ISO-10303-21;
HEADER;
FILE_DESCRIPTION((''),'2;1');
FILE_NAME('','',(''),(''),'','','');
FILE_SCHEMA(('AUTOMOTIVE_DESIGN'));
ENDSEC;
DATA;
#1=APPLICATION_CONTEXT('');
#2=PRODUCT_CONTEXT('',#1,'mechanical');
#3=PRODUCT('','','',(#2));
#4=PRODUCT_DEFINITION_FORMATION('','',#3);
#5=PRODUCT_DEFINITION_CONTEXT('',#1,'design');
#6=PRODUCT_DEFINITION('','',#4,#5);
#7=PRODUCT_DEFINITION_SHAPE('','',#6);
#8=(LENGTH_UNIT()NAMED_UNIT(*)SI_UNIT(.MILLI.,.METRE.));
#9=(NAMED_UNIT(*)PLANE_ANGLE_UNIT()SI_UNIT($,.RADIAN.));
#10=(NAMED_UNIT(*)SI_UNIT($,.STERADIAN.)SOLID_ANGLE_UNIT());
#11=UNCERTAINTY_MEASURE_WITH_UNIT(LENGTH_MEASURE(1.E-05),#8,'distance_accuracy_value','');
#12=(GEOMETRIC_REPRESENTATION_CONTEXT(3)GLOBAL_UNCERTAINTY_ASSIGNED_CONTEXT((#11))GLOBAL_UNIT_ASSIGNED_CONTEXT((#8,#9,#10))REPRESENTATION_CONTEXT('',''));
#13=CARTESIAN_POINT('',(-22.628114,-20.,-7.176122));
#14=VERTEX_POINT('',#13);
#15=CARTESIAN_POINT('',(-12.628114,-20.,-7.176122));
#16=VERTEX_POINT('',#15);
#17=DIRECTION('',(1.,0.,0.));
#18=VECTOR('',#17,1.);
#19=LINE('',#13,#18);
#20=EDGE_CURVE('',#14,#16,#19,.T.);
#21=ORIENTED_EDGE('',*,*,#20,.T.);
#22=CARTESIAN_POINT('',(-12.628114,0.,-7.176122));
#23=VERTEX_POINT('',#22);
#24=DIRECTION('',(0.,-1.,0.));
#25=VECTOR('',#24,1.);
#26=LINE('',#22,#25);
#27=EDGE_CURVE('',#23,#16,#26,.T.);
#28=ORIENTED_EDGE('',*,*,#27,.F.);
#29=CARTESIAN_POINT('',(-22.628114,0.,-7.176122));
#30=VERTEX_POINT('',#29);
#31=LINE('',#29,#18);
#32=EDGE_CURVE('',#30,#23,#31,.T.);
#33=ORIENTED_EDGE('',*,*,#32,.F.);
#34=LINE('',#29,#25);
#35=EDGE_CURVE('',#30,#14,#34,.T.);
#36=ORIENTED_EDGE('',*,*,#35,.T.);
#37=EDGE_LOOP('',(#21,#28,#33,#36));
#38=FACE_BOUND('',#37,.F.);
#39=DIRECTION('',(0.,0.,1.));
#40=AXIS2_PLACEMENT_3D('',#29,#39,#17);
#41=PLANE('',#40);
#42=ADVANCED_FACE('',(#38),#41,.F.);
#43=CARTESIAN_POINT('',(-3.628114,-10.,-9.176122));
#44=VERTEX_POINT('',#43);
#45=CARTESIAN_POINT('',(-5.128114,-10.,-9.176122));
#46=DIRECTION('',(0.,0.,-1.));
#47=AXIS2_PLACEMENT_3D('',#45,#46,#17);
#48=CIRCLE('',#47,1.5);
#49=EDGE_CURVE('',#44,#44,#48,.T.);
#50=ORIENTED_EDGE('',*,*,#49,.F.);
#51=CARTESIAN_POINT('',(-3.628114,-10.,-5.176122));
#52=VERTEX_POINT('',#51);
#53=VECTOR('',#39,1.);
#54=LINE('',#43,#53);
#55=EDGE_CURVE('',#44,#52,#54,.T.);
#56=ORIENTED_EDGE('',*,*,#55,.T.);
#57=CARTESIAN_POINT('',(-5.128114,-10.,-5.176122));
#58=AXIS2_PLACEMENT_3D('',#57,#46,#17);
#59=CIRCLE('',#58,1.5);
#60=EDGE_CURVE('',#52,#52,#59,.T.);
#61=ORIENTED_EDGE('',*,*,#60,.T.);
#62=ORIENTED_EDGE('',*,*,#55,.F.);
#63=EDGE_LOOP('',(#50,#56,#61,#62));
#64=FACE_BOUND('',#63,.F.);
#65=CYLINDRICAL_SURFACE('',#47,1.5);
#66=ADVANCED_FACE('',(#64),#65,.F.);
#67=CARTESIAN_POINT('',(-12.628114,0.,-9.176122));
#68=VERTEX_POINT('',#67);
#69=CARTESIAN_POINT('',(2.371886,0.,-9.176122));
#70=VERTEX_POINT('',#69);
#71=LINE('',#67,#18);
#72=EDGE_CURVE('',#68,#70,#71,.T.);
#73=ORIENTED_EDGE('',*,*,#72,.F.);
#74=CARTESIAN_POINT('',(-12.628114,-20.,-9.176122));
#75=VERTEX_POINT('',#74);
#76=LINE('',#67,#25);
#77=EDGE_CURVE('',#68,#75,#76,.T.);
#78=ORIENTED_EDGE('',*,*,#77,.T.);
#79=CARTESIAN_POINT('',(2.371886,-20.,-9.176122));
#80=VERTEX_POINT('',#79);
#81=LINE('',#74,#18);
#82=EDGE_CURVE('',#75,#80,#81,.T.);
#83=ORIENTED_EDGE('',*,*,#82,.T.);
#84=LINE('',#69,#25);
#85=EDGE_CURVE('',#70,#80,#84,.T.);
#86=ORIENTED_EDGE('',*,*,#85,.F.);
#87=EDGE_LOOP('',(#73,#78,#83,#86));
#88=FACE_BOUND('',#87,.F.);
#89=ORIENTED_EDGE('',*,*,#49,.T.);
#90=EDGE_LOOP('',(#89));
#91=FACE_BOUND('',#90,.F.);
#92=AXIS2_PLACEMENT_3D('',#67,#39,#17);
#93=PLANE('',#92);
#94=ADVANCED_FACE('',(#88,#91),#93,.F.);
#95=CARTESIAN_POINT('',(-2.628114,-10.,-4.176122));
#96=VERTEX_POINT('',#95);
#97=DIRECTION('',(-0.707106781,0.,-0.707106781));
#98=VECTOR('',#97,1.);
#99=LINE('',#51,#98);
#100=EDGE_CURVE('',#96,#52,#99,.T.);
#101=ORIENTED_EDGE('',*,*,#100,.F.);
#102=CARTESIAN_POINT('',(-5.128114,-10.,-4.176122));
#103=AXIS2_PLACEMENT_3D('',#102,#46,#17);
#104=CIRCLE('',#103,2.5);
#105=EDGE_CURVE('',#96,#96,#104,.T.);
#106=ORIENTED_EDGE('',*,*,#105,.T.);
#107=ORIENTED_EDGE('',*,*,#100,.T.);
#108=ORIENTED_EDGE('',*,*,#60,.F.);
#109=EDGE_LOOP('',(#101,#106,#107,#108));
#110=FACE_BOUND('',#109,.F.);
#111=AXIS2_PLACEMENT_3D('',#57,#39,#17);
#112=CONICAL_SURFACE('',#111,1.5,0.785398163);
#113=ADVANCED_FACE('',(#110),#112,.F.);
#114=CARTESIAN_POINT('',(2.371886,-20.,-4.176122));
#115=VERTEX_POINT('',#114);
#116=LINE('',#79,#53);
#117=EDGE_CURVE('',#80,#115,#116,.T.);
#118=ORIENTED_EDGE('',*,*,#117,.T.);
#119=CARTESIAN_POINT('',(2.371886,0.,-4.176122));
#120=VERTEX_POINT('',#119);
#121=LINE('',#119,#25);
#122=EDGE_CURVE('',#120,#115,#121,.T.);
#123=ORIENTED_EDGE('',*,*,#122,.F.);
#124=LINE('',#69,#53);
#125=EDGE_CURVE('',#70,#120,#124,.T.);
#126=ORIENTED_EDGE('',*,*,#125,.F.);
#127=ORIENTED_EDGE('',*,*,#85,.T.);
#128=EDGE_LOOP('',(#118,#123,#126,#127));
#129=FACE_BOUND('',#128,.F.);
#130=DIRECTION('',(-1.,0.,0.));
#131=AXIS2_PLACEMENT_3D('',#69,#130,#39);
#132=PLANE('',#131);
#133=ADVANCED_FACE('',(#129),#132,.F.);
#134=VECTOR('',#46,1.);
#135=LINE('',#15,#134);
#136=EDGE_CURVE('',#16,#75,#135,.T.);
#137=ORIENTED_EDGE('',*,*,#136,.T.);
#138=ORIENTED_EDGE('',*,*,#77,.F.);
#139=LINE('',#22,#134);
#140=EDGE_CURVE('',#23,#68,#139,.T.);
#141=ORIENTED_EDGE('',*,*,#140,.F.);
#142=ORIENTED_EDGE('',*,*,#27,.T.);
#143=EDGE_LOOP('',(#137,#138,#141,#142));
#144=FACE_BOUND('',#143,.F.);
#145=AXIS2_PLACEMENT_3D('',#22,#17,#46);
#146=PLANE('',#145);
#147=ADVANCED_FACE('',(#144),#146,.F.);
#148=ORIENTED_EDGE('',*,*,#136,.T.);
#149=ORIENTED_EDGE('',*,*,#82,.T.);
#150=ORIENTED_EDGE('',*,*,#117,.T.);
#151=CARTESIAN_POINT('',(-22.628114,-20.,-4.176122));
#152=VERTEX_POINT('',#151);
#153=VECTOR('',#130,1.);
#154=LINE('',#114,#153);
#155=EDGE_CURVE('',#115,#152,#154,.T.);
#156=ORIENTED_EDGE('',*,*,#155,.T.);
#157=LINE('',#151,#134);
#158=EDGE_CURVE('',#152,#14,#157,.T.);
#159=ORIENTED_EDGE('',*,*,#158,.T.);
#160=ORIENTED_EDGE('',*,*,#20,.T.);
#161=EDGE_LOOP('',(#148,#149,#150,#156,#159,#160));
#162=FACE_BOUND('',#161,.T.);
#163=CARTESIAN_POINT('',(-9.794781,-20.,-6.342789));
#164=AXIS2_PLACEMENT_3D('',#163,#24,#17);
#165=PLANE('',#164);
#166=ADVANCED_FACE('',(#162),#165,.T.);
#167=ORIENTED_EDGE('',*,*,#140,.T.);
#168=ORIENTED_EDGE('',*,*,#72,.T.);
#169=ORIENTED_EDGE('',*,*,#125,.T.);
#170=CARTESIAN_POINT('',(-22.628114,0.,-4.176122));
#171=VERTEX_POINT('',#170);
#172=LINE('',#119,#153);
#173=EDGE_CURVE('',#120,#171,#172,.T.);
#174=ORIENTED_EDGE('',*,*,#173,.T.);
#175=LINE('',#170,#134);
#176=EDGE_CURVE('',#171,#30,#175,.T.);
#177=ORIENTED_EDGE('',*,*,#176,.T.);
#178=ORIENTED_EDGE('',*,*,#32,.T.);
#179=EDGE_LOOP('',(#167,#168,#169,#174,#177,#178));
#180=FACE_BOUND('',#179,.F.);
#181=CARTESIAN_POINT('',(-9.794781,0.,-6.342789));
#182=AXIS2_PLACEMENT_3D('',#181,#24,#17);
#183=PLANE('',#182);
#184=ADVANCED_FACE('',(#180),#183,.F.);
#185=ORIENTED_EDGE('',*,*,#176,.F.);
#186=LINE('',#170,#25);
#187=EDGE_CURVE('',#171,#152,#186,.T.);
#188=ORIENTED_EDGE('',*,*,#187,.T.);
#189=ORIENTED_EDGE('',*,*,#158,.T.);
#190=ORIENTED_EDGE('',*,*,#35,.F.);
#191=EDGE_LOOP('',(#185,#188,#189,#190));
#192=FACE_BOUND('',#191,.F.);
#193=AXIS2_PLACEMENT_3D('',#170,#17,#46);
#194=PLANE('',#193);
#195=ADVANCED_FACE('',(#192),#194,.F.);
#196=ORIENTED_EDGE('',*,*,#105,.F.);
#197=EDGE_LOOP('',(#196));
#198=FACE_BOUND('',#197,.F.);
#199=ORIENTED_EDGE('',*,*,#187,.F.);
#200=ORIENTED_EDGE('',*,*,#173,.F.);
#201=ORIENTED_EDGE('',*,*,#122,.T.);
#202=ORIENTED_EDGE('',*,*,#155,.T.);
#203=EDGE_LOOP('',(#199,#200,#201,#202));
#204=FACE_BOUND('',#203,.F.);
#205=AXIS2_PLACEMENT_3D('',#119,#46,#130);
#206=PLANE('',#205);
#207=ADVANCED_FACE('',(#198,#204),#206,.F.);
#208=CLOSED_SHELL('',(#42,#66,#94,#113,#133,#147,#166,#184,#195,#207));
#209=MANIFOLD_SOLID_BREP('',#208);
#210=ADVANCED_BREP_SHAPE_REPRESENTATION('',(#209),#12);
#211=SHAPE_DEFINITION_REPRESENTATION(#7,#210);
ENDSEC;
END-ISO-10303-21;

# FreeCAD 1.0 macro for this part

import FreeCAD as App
import Part
import Sketcher

V = App.Vector
Q = App.Units.Quantity


def edges_at(feature, points):
    """Names of the edges that pass closest to the given points."""
    edges = feature.Shape.Edges
    near = lambda p: min(range(len(edges)), key=lambda i: edges[i].distToShape(Part.Vertex(*p))[0])
    return sorted({f"Edge{near(p) + 1}" for p in points})

doc = App.newDocument("Part")
body = doc.addObject("PartDesign::Body", "Body")

# Sketch on XZ plane
sketch1 = body.newObject("Sketcher::SketchObject", "Sketch")
sketch1.AttachmentSupport = (doc.getObject("XZ_Plane"), [""])
sketch1.MapMode = "FlatFace"
sketch1.addGeometry([
    Part.LineSegment(V(-22.6, -7.2, 0), V(-12.6, -7.2, 0)),  # 0
    Part.LineSegment(V(-12.6, -7.2, 0), V(-12.6, -9.2, 0)),  # 1
    Part.LineSegment(V(-12.6, -9.2, 0), V(2.4, -9.2, 0)),  # 2
    Part.LineSegment(V(2.4, -9.2, 0), V(2.4, -4.2, 0)),  # 3
    Part.LineSegment(V(2.4, -4.2, 0), V(-22.6, -4.2, 0)),  # 4
    Part.LineSegment(V(-22.6, -4.2, 0), V(-22.6, -7.2, 0)),  # 5
], False)
sketch1.addConstraint([
    Sketcher.Constraint("Coincident", 0, 2, 1, 1),
    Sketcher.Constraint("Coincident", 1, 2, 2, 1),
    Sketcher.Constraint("Coincident", 2, 2, 3, 1),
    Sketcher.Constraint("Coincident", 3, 2, 4, 1),
    Sketcher.Constraint("Coincident", 4, 2, 5, 1),
    Sketcher.Constraint("Coincident", 5, 2, 0, 1),
    Sketcher.Constraint("Horizontal", 0),
    Sketcher.Constraint("Vertical", 1),
    Sketcher.Constraint("Horizontal", 2),
    Sketcher.Constraint("Vertical", 3),
    Sketcher.Constraint("Horizontal", 4),
    Sketcher.Constraint("Vertical", 5),
    Sketcher.Constraint("DistanceX", 0, 1, 0, 2, Q("10 mm")),
    Sketcher.Constraint("DistanceX", 2, 1, 2, 2, Q("15 mm")),
    Sketcher.Constraint("DistanceY", 1, 2, 1, 1, Q("2 mm")),
    Sketcher.Constraint("DistanceY", 3, 1, 3, 2, Q("5 mm")),
    Sketcher.Constraint("DistanceX", 0, 2, -1, 1, Q("12.628114 mm")),
    Sketcher.Constraint("DistanceY", 0, 2, -1, 1, Q("7.176122 mm")),
])
pad1 = body.newObject("PartDesign::Pad", "Pad")
pad1.Profile = sketch1
pad1.Length = 20

# Sketch on XY plane
sketch2 = body.newObject("Sketcher::SketchObject", "Sketch001")
sketch2.AttachmentSupport = (doc.getObject("XY_Plane"), [""])
sketch2.MapMode = "FlatFace"
sketch2.AttachmentOffset = App.Placement(V(0, 0, -9.176122), App.Rotation())
sketch2.addGeometry(Part.Circle(V(-5.1, -10, 0), V(0, 0, 1), 1.5), False)
sketch2.addConstraint([
    Sketcher.Constraint("Diameter", 0, Q("3 mm")),
    Sketcher.Constraint("DistanceY", 0, 3, -1, 1, Q("10 mm")),
    Sketcher.Constraint("DistanceX", 0, 3, -1, 1, Q("5.128114 mm")),
])
pocket1 = body.newObject("PartDesign::Pocket", "Pocket")
pocket1.Profile = sketch2
pocket1.Type = "ThroughAll"
pocket1.Reversed = True
doc.recompute()

chamfer = body.newObject("PartDesign::Chamfer", "Chamfer")
chamfer.Base = (pocket1, edges_at(pocket1, [(-6.628, -10, -4.176)]))
chamfer.Size = 1

doc.recompute()
